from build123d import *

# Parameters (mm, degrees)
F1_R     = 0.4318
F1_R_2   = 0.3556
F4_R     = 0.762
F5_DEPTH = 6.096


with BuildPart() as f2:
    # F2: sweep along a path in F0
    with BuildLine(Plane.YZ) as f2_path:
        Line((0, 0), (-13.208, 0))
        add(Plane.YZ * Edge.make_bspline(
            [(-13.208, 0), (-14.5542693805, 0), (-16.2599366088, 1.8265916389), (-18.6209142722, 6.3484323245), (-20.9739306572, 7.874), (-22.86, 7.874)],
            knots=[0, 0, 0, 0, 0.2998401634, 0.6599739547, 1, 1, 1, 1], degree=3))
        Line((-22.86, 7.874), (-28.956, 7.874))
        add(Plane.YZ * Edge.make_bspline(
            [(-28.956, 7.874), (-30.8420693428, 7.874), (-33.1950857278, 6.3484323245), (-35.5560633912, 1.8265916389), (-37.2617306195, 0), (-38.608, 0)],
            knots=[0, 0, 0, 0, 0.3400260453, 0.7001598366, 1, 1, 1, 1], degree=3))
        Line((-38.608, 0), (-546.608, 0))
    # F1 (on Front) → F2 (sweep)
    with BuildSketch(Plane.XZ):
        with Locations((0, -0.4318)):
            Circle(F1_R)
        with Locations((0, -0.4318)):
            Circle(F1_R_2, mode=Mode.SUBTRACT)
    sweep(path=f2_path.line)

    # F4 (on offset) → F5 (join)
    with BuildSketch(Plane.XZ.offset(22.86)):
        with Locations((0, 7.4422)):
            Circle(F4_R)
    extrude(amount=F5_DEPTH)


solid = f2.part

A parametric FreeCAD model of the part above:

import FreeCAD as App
import Part
import Sketcher

V = App.Vector
Q = App.Units.Quantity

doc = App.newDocument("Part")
body = doc.addObject("PartDesign::Body", "Body")

sketch1 = doc.addObject("Sketcher::SketchObject", "Sketch")
body.addObject(sketch1)
sketch1.AttachmentSupport = (doc.XZ_Plane, [""])
sketch1.MapMode = "FlatFace"
sketch1.addGeometry(Part.Circle(V(0, -0.43, 0), V(0, 0, 1), 0.43), False)
sketch1.addGeometry(Part.Circle(V(0, -0.43, 0), V(0, 0, 1), 0.36), False)
sketch1.addConstraint(Sketcher.Constraint("Coincident", 1, 3, 0, 3))
sketch1.addConstraint(Sketcher.Constraint("PointOnObject", 0, 3, -2))
sketch1.addConstraint(Sketcher.Constraint("Diameter", 0, Q("0.034 in")))
sketch1.addConstraint(Sketcher.Constraint("Diameter", 1, Q("0.028 in")))
sketch1.addConstraint(Sketcher.Constraint("DistanceY", 0, 3, -1, 1, Q("0.017 in")))

sketch2 = doc.addObject("Sketcher::SketchObject", "Sketch001")
body.addObject(sketch2)
sketch2.AttachmentSupport = (doc.YZ_Plane, [""])
sketch2.MapMode = "FlatFace"
sketch2.addGeometry(Part.LineSegment(V(0, 0, 0), V(-13.208, 0, 0)), False)
sketch2.addGeometry(Part.BSplineCurve([V(-13.208, 0, 0), V(-14.554269, 0, 0), V(-16.259937, 1.826592, 0), V(-18.620914, 6.348432, 0), V(-20.973931, 7.874, 0), V(-22.86, 7.874, 0)], [4, 1, 1, 4], [0, 0.299840163, 0.659973955, 1], False, 3, [1, 1, 1, 1, 1, 1], False), False)
sketch2.addGeometry(Part.LineSegment(V(-22.86, 7.874, 0), V(-28.956, 7.874, 0)), False)
sketch2.addGeometry(Part.BSplineCurve([V(-28.956, 7.874, 0), V(-30.842069, 7.874, 0), V(-33.195086, 6.348432, 0), V(-35.556063, 1.826592, 0), V(-37.261731, 0, 0), V(-38.608, 0, 0)], [4, 1, 1, 4], [0, 0.340026045, 0.700159837, 1], False, 3, [1, 1, 1, 1, 1, 1], False), False)
sketch2.addGeometry(Part.LineSegment(V(-38.608, 0, 0), V(-546.608, 0, 0)), False)
sketch2.addConstraint(Sketcher.Constraint("Block", 1))
sketch2.addConstraint(Sketcher.Constraint("Block", 3))
sketch2.addConstraint(Sketcher.Constraint("Coincident", 0, 2, 1, 1))
sketch2.addConstraint(Sketcher.Constraint("Coincident", 1, 2, 2, 1))
sketch2.addConstraint(Sketcher.Constraint("Coincident", 2, 2, 3, 1))
sketch2.addConstraint(Sketcher.Constraint("Coincident", 3, 2, 4, 1))
sketch2.addConstraint(Sketcher.Constraint("Horizontal", 0))
sketch2.addConstraint(Sketcher.Constraint("Horizontal", 4))
sketch2.addConstraint(Sketcher.Constraint("DistanceX", 4, 2, 4, 1, Q("20 in")))
sketch2.addConstraint(Sketcher.Constraint("DistanceX", 0, 2, 0, 1, Q("0.52 in")))
doc.recompute()

additivepipe = doc.addObject("PartDesign::AdditivePipe", "AdditivePipe")
body.addObject(additivepipe)
additivepipe.Profile = sketch1
additivepipe.Spine = (sketch2, ["Edge1", "Edge2", "Edge3", "Edge4", "Edge5"])

sketch3 = doc.addObject("Sketcher::SketchObject", "Sketch002")
body.addObject(sketch3)
sketch3.AttachmentSupport = (doc.XZ_Plane, [""])
sketch3.MapMode = "FlatFace"
sketch3.AttachmentOffset = App.Placement(V(0, 0, 0.9 * 25.4), App.Rotation())
sketch3.addGeometry(Part.Circle(V(0, 7.4, 0), V(0, 0, 1), 0.8), False)
sketch3.addConstraint(Sketcher.Constraint("PointOnObject", 0, 3, -2))
sketch3.addConstraint(Sketcher.Constraint("Diameter", 0, Q("0.06 in")))
sketch3.addConstraint(Sketcher.Constraint("DistanceY", -1, 1, 0, 3, Q("0.293 in")))
pad1 = doc.addObject("PartDesign::Pad", "Pad")
body.addObject(pad1)
pad1.Profile = sketch3
pad1.Length = Q("0.24 in")

doc.recompute()
